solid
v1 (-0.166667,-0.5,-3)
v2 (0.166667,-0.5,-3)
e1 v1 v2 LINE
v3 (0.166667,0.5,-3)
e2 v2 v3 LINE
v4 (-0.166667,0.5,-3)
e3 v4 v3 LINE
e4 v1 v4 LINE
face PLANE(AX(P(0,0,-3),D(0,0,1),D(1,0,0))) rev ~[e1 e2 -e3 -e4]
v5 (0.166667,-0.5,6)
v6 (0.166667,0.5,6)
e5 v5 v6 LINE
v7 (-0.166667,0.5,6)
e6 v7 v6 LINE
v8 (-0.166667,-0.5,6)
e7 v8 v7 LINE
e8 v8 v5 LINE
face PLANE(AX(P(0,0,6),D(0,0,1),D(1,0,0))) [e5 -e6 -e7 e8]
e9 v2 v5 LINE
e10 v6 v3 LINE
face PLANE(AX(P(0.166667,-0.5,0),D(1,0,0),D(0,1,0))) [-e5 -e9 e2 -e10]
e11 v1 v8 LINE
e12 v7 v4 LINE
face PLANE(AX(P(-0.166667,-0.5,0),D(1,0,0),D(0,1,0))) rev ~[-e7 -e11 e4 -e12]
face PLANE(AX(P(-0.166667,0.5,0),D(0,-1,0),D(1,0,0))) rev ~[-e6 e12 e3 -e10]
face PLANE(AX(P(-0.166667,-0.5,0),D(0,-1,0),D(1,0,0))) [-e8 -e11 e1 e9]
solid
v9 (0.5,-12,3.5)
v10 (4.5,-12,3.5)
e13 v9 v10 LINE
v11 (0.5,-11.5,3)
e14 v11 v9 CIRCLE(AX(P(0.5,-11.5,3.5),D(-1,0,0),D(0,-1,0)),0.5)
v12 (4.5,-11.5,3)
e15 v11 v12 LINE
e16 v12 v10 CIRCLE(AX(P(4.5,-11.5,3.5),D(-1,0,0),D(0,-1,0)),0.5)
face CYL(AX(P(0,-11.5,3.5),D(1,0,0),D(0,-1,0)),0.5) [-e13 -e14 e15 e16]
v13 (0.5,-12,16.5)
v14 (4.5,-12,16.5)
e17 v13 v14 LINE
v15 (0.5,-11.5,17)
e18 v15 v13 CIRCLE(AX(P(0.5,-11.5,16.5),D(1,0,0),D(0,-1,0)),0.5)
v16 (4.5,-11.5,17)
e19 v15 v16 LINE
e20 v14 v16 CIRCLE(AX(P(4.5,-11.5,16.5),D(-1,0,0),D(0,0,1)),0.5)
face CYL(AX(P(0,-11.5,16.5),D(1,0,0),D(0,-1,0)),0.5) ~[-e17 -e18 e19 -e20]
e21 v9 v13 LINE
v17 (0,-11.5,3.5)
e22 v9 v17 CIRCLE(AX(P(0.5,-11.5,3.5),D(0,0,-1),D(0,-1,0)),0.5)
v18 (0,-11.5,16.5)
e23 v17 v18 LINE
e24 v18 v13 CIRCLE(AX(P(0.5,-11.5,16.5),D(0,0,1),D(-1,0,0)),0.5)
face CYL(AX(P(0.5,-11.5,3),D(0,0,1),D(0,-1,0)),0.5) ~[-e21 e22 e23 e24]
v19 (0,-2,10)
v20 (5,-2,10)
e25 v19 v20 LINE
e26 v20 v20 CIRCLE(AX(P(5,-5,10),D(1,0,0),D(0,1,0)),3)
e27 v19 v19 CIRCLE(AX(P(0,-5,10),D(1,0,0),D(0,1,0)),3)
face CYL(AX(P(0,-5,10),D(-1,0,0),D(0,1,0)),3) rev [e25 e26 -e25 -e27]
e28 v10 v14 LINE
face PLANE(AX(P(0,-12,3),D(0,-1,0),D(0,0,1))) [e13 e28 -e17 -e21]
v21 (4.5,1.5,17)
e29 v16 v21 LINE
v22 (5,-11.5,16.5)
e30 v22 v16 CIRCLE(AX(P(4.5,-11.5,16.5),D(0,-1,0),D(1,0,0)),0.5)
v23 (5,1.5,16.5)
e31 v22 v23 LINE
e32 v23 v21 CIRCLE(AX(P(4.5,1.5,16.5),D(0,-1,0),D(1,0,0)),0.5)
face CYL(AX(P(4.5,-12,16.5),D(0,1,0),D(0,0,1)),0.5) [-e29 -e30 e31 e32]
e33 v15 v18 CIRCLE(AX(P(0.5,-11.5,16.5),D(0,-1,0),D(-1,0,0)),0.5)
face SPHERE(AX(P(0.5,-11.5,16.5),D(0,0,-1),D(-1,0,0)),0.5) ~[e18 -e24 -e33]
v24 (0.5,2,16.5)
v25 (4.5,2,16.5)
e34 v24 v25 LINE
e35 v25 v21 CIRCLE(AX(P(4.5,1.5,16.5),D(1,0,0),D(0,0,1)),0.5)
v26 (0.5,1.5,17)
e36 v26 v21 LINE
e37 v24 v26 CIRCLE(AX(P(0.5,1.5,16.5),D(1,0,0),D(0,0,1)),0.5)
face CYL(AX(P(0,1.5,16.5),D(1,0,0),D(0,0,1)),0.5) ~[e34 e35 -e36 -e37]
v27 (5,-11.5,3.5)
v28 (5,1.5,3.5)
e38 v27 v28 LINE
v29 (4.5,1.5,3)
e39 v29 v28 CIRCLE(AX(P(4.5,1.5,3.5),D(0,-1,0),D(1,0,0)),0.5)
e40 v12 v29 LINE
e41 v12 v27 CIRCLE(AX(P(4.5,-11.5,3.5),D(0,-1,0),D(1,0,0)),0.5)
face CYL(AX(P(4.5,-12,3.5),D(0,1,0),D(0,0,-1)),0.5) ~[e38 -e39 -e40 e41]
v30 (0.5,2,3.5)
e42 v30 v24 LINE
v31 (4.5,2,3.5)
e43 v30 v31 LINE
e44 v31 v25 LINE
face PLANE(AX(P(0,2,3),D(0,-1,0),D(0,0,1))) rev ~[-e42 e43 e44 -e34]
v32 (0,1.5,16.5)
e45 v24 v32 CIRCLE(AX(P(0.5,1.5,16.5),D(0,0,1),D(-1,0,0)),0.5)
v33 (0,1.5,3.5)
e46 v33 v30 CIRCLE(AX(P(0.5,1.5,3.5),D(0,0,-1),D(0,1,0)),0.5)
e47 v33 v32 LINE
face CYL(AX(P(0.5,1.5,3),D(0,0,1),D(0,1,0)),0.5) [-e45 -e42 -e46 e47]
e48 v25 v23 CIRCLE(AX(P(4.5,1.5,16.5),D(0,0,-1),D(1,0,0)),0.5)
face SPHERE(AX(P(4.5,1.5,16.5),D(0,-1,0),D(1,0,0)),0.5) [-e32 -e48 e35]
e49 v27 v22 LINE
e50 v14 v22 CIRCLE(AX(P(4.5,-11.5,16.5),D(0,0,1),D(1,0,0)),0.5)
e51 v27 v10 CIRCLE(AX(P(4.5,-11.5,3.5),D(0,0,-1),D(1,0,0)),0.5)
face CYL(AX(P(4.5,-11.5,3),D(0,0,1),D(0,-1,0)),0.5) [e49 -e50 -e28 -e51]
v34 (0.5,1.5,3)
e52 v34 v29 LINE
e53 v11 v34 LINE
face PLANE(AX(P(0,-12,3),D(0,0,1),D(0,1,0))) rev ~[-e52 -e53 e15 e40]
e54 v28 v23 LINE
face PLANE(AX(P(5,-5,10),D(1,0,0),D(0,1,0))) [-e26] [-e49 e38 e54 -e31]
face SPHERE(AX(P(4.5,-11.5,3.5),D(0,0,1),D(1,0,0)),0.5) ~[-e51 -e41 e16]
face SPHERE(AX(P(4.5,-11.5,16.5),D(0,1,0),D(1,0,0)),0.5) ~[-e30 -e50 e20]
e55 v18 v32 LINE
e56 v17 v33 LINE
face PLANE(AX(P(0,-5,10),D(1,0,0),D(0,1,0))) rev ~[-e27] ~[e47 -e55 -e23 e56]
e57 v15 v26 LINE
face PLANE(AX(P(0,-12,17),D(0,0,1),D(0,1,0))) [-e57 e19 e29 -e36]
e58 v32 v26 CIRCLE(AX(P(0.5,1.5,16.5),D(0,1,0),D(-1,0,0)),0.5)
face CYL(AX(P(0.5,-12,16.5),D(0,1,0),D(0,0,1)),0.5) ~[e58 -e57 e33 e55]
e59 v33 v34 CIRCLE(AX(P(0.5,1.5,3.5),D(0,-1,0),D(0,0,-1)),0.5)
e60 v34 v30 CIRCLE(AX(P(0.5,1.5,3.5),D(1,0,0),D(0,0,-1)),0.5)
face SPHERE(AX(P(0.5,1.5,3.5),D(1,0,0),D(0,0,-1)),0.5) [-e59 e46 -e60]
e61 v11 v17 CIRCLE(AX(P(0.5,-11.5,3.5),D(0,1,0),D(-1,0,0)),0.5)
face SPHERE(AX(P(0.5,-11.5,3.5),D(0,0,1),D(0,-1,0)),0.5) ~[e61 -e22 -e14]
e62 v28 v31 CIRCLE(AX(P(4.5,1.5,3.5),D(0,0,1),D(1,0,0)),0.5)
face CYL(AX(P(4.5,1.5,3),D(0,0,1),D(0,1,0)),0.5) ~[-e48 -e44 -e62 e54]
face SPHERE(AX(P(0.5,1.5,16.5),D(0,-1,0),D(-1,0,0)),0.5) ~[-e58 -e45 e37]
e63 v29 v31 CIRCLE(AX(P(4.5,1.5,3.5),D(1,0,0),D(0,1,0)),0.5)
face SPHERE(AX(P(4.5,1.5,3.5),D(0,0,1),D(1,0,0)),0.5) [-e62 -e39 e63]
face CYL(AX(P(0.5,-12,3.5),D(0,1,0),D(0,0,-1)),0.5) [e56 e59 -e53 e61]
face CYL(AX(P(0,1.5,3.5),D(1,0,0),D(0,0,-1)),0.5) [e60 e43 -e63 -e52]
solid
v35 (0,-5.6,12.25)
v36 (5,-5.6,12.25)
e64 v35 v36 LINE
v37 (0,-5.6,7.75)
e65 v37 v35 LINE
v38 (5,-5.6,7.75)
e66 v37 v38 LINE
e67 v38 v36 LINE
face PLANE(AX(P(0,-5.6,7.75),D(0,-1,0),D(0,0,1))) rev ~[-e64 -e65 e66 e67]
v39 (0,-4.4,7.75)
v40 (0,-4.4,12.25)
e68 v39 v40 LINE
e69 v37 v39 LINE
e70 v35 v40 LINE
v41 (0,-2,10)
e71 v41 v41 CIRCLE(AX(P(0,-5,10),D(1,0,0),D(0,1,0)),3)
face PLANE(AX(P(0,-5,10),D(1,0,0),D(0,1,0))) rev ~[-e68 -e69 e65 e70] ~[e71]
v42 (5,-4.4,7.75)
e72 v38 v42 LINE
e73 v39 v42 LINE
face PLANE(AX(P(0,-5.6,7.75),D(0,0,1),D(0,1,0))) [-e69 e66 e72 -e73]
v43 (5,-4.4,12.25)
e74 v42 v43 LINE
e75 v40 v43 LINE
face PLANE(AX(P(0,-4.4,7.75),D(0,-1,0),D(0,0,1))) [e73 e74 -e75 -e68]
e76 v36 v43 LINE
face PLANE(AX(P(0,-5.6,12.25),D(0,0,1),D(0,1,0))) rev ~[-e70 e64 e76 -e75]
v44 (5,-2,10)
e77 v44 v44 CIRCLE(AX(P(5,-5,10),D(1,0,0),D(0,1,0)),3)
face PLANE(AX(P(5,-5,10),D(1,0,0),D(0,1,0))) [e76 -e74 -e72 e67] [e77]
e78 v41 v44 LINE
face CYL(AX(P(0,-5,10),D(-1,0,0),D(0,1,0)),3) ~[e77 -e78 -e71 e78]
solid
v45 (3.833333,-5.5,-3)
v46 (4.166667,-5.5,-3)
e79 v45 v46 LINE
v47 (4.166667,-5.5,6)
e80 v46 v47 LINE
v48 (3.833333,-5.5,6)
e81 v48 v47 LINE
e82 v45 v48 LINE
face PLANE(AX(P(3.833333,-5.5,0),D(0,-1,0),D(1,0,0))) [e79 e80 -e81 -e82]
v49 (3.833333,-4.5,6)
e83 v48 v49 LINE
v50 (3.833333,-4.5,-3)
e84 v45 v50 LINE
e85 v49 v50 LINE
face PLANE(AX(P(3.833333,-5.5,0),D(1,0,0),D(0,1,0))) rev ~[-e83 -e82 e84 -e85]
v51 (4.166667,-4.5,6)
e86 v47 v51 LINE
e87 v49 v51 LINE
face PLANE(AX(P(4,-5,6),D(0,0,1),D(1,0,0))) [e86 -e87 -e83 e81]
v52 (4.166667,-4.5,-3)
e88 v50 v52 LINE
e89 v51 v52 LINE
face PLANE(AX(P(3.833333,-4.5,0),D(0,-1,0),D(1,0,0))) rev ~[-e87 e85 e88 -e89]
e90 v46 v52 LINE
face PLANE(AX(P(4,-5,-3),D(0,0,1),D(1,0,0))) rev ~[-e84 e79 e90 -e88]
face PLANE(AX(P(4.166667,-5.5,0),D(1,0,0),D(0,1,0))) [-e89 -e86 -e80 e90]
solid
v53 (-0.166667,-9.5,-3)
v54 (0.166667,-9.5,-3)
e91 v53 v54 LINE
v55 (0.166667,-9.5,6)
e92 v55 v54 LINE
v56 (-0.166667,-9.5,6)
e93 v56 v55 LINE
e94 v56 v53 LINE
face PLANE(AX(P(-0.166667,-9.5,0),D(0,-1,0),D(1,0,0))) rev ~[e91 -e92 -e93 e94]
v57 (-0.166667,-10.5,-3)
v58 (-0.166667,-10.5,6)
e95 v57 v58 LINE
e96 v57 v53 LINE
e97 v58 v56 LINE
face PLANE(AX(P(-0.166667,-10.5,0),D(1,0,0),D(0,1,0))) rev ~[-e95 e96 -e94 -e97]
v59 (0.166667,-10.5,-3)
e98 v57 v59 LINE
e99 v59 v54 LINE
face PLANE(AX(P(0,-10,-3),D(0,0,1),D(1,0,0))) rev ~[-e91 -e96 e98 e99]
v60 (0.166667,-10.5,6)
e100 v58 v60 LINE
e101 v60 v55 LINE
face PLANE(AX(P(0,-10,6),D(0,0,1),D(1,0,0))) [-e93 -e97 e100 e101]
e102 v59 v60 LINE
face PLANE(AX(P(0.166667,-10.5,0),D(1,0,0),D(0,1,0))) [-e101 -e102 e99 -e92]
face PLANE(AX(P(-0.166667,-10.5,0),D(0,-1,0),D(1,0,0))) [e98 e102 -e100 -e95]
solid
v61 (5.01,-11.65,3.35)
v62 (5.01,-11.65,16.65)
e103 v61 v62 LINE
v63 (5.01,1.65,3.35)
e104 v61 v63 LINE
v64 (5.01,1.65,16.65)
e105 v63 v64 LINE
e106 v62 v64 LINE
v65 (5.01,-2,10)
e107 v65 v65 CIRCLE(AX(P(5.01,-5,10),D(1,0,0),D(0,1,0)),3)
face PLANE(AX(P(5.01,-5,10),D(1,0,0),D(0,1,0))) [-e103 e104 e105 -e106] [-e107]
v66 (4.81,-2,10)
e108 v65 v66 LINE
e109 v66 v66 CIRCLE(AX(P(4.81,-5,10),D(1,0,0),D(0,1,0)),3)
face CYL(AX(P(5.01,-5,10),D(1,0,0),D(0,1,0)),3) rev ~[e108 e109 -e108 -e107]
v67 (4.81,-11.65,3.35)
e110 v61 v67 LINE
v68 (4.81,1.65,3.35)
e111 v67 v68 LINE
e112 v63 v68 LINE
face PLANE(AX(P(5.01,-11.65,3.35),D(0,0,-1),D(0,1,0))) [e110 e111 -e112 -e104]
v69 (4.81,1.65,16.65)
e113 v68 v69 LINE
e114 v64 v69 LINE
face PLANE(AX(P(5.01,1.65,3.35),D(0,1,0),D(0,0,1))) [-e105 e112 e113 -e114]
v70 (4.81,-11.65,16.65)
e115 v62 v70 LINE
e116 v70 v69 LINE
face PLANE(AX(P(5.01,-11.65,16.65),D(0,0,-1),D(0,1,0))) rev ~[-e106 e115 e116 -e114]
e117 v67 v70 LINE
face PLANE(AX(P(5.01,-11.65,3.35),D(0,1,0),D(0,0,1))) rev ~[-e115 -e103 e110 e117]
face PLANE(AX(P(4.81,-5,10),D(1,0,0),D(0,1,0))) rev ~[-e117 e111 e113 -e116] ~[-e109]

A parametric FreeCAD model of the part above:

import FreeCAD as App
import Part
import Sketcher
from FreeCAD import Vector


def edges_at(feature, points):
    """Names of the edges that pass closest to the given points."""
    edges = feature.Shape.Edges
    near = lambda p: min(range(len(edges)), key=lambda i: edges[i].distToShape(Part.Vertex(*p))[0])
    return sorted({f"Edge{near(p) + 1}" for p in points})

doc = App.newDocument("Part")
body = doc.addObject("PartDesign::Body", "Body")

# Sketch on YZ plane
sketch1 = doc.addObject("Sketcher::SketchObject", "Sketch")
body.addObject(sketch1)
sketch1.AttachmentSupport = (doc.YZ_Plane, [""])
sketch1.MapMode = "FlatFace"
sketch1.addGeometry([
    Part.Circle(Vector(-5, 10, 0), Vector(0, 0, 1), 3),  # 0
    Part.LineSegment(Vector(-4.4, 7.8, 0), Vector(-5.6, 7.8, 0)),  # 1
    Part.LineSegment(Vector(-5.6, 7.8, 0), Vector(-5.6, 12.2, 0)),  # 2
    Part.LineSegment(Vector(-5.6, 12.2, 0), Vector(-4.4, 12.2, 0)),  # 3
    Part.LineSegment(Vector(-4.4, 12.2, 0), Vector(-4.4, 7.8, 0)),  # 4
], False)
sketch1.addConstraint([
    Sketcher.Constraint("Coincident", 1, 2, 2, 1),
    Sketcher.Constraint("Coincident", 2, 2, 3, 1),
    Sketcher.Constraint("Coincident", 3, 2, 4, 1),
    Sketcher.Constraint("Coincident", 4, 2, 1, 1),
    Sketcher.Constraint("Horizontal", 1),
    Sketcher.Constraint("Vertical", 2),
    Sketcher.Constraint("Horizontal", 3),
    Sketcher.Constraint("Vertical", 4),
    Sketcher.Constraint("Diameter", 0, 6.0),
    Sketcher.Constraint("DistanceX", 1, 2, 1, 1, 1.2),
    Sketcher.Constraint("DistanceY", 2, 1, 2, 2, 4.5),
    Sketcher.Constraint("DistanceX", 0, 3, -1, 1, 5.0),
    Sketcher.Constraint("DistanceY", -1, 1, 0, 3, 10.0),
    Sketcher.Constraint("DistanceX", 1, 2, -1, 1, 5.6),
    Sketcher.Constraint("DistanceY", -1, 1, 1, 2, 7.75),
])
pad1 = doc.addObject("PartDesign::Pad", "Pad")
body.addObject(pad1)
pad1.Profile = sketch1
pad1.Length = 5
body2 = doc.addObject("PartDesign::Body", "Body001")
body2.AllowCompound = True

# Sketch on XY plane
sketch2 = doc.addObject("Sketcher::SketchObject", "Sketch001")
body2.addObject(sketch2)
sketch2.AttachmentSupport = (doc.getObject("XY_Plane001"), [""])
sketch2.MapMode = "FlatFace"
sketch2.addGeometry([
    Part.LineSegment(Vector(-0.17, 0.5, 0), Vector(-0.17, -0.5, 0)),  # 0
    Part.LineSegment(Vector(-0.17, -0.5, 0), Vector(0.17, -0.5, 0)),  # 1
    Part.LineSegment(Vector(0.17, -0.5, 0), Vector(0.17, 0.5, 0)),  # 2
    Part.LineSegment(Vector(0.17, 0.5, 0), Vector(-0.17, 0.5, 0)),  # 3
    Part.LineSegment(Vector(3.83, -4.5, 0), Vector(3.83, -5.5, 0)),  # 4
    Part.LineSegment(Vector(3.83, -5.5, 0), Vector(4.17, -5.5, 0)),  # 5
    Part.LineSegment(Vector(4.17, -5.5, 0), Vector(4.17, -4.5, 0)),  # 6
    Part.LineSegment(Vector(4.17, -4.5, 0), Vector(3.83, -4.5, 0)),  # 7
    Part.LineSegment(Vector(-0.17, -9.5, 0), Vector(-0.17, -10.5, 0)),  # 8
    Part.LineSegment(Vector(-0.17, -10.5, 0), Vector(0.17, -10.5, 0)),  # 9
    Part.LineSegment(Vector(0.17, -10.5, 0), Vector(0.17, -9.5, 0)),  # 10
    Part.LineSegment(Vector(0.17, -9.5, 0), Vector(-0.17, -9.5, 0)),  # 11
], False)
sketch2.addConstraint([
    Sketcher.Constraint("Coincident", 0, 2, 1, 1),
    Sketcher.Constraint("Coincident", 1, 2, 2, 1),
    Sketcher.Constraint("Coincident", 2, 2, 3, 1),
    Sketcher.Constraint("Coincident", 3, 2, 0, 1),
    Sketcher.Constraint("Coincident", 4, 2, 5, 1),
    Sketcher.Constraint("Coincident", 5, 2, 6, 1),
    Sketcher.Constraint("Coincident", 6, 2, 7, 1),
    Sketcher.Constraint("Coincident", 7, 2, 4, 1),
    Sketcher.Constraint("Coincident", 8, 2, 9, 1),
    Sketcher.Constraint("Coincident", 9, 2, 10, 1),
    Sketcher.Constraint("Coincident", 10, 2, 11, 1),
    Sketcher.Constraint("Coincident", 11, 2, 8, 1),
    Sketcher.Constraint("Vertical", 0),
    Sketcher.Constraint("Horizontal", 1),
    Sketcher.Constraint("Vertical", 2),
    Sketcher.Constraint("Horizontal", 3),
    Sketcher.Constraint("Vertical", 4),
    Sketcher.Constraint("Horizontal", 5),
    Sketcher.Constraint("Vertical", 6),
    Sketcher.Constraint("Horizontal", 7),
    Sketcher.Constraint("Vertical", 8),
    Sketcher.Constraint("Horizontal", 9),
    Sketcher.Constraint("Vertical", 10),
    Sketcher.Constraint("Horizontal", 11),
    Sketcher.Constraint("Symmetric", 0, 2, 2, 2, -1, 1),
    Sketcher.Constraint("Vertical", 3, 2, 8, 2),
    Sketcher.Constraint("Vertical", 2, 2, 9, 2),
    Sketcher.Constraint("Equal", 3, 5),
    Sketcher.Constraint("Equal", 2, 4),
    Sketcher.Constraint("Equal", 6, 8),
    Sketcher.Constraint("DistanceY", 0, 2, 0, 1, 1.0),
    Sketcher.Constraint("DistanceY", 4, 2, 1, 2, 5.0),
    Sketcher.Constraint("DistanceX", 0, 2, 4, 2, 4.0),
    Sketcher.Constraint("DistanceY", 8, 2, 4, 2, 5.0),
    Sketcher.Constraint("DistanceX", 1, 1, 1, 2, 0.333334),
])
pad2 = doc.addObject("PartDesign::Pad", "Pad001")
body2.addObject(pad2)
pad2.Profile = sketch2
pad2.Type = "TwoLengths"
pad2.Length = 6
pad2.Length2 = 3
body3 = doc.addObject("PartDesign::Body", "Body002")

# Sketch on YZ plane
sketch3 = doc.addObject("Sketcher::SketchObject", "Sketch002")
body3.addObject(sketch3)
sketch3.AttachmentSupport = (doc.getObject("YZ_Plane002"), [""])
sketch3.MapMode = "FlatFace"
sketch3.AttachmentOffset = App.Placement(Vector(0, 0, 5.01), App.Rotation())
sketch3.addGeometry([
    Part.LineSegment(Vector(-11.7, 16.6, 0), Vector(-11.7, 3.4, 0)),  # 0
    Part.LineSegment(Vector(-11.7, 3.4, 0), Vector(1.6, 3.4, 0)),  # 1
    Part.LineSegment(Vector(1.6, 3.4, 0), Vector(1.6, 16.6, 0)),  # 2
    Part.LineSegment(Vector(1.6, 16.6, 0), Vector(-11.7, 16.6, 0)),  # 3
    Part.Circle(Vector(-5, 10, 0), Vector(0, 0, 1), 3),  # 4
], False)
sketch3.addConstraint([
    Sketcher.Constraint("Coincident", 0, 2, 1, 1),
    Sketcher.Constraint("Coincident", 1, 2, 2, 1),
    Sketcher.Constraint("Coincident", 2, 2, 3, 1),
    Sketcher.Constraint("Coincident", 3, 2, 0, 1),
    Sketcher.Constraint("Vertical", 0),
    Sketcher.Constraint("Horizontal", 1),
    Sketcher.Constraint("Vertical", 2),
    Sketcher.Constraint("Horizontal", 3),
    Sketcher.Constraint("Equal", 3, 0),
    Sketcher.Constraint("Diameter", 4, 6.0),
    Sketcher.Constraint("DistanceX", 1, 1, 1, 2, 13.3),
    Sketcher.Constraint("DistanceX", 4, 3, -1, 1, 5.0),
    Sketcher.Constraint("DistanceY", -1, 1, 4, 3, 10.0),
    Sketcher.Constraint("DistanceX", 0, 2, -1, 1, 11.65),
    Sketcher.Constraint("DistanceY", -1, 1, 0, 2, 3.35),
])
pad3 = doc.addObject("PartDesign::Pad", "Pad002")
body3.addObject(pad3)
pad3.Profile = sketch3
pad3.Length = 0.2
pad3.Reversed = True
body4 = doc.addObject("PartDesign::Body", "Body003")

# Sketch on YZ plane
sketch4 = doc.addObject("Sketcher::SketchObject", "Sketch003")
body4.addObject(sketch4)
sketch4.AttachmentSupport = (doc.getObject("YZ_Plane003"), [""])
sketch4.MapMode = "FlatFace"
sketch4.addGeometry([
    Part.LineSegment(Vector(-12, 17, 0), Vector(-12, 3, 0)),  # 0
    Part.LineSegment(Vector(-12, 3, 0), Vector(2, 3, 0)),  # 1
    Part.LineSegment(Vector(2, 3, 0), Vector(2, 17, 0)),  # 2
    Part.LineSegment(Vector(2, 17, 0), Vector(-12, 17, 0)),  # 3
    Part.Circle(Vector(-5, 10, 0), Vector(0, 0, 1), 3),  # 4
], False)
sketch4.addConstraint([
    Sketcher.Constraint("Coincident", 0, 2, 1, 1),
    Sketcher.Constraint("Coincident", 1, 2, 2, 1),
    Sketcher.Constraint("Coincident", 2, 2, 3, 1),
    Sketcher.Constraint("Coincident", 3, 2, 0, 1),
    Sketcher.Constraint("Vertical", 0),
    Sketcher.Constraint("Horizontal", 1),
    Sketcher.Constraint("Vertical", 2),
    Sketcher.Constraint("Horizontal", 3),
    Sketcher.Constraint("Equal", 3, 0),
    Sketcher.Constraint("Diameter", 4, 6.0),
    Sketcher.Constraint("DistanceX", 1, 1, 1, 2, 14.0),
    Sketcher.Constraint("DistanceX", 4, 3, -1, 1, 5.0),
    Sketcher.Constraint("DistanceY", -1, 1, 4, 3, 10.0),
    Sketcher.Constraint("DistanceX", 0, 2, -1, 1, 12.0),
    Sketcher.Constraint("DistanceY", -1, 1, 0, 2, 3.0),
])
pad4 = doc.addObject("PartDesign::Pad", "Pad003")
body4.addObject(pad4)
pad4.Profile = sketch4
pad4.Length = 5
doc.recompute()

fillet = doc.addObject("PartDesign::Fillet", "Fillet")
body4.addObject(fillet)
fillet.Base = (pad4, edges_at(pad4, [
    (0, -12, 10),
    (0, -5, 17),
    (5, -5, 17),
    (5, -12, 10),
    (5, 2, 10),
    (5, -5, 3),
    (2.5, -12, 17),
    (2.5, -12, 3),
    (2.5, 2, 3),
    (0, -5, 3),
    (0, 2, 10),
    (2.5, 2, 17),
]))
fillet.Radius = 0.5

doc.recompute()
